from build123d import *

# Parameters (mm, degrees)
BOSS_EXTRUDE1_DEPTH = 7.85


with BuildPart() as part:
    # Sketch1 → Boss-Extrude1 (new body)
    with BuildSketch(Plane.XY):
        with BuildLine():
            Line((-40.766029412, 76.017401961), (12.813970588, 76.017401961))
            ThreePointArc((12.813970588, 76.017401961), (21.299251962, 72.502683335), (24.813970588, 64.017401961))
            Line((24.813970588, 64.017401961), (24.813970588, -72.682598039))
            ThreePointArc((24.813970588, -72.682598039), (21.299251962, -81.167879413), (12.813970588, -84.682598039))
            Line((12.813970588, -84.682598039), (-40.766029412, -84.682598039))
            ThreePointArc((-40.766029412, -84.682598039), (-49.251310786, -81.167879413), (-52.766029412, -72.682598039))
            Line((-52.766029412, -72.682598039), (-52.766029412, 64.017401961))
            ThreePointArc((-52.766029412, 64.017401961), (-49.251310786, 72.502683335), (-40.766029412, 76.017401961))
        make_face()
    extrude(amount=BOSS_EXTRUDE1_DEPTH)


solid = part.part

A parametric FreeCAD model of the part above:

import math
import FreeCAD as App
import Part
import Sketcher

V = App.Vector

doc = App.newDocument("Part")
params = doc.addObject("Spreadsheet::Sheet", "Params")
for row, (alias, value) in enumerate([
    ("sketch1_radius", "12 mm"),
    ("sketch1_height", "136.7 mm"),
    ("sketch1_width", "53.58 mm"),
    ("pad1_length", "7.85 mm"),
], start=1):
    params.set(f"A{row}", alias)
    params.set(f"B{row}", "=" + value)
    params.setAlias(f"B{row}", alias)

body = doc.addObject("PartDesign::Body", "Body")

# Sketch on XY plane
sketch1 = doc.addObject("Sketcher::SketchObject", "Sketch")
body.addObject(sketch1)
sketch1.AttachmentSupport = (doc.XY_Plane, [""])
sketch1.MapMode = "FlatFace"
sketch1.addGeometry(Part.LineSegment(V(13, 76, 0), V(-41, 76, 0)), False)
sketch1.addGeometry(Part.ArcOfCircle(Part.Circle(V(-41, 64, 0), V(0, 0, 1), 12), math.radians(90), math.radians(180)), False)
sketch1.addGeometry(Part.LineSegment(V(-53, 64, 0), V(-53, -73, 0)), False)
sketch1.addGeometry(Part.ArcOfCircle(Part.Circle(V(-41, -73, 0), V(0, 0, 1), 12), math.radians(-180), math.radians(-90)), False)
sketch1.addGeometry(Part.LineSegment(V(-41, -85, 0), V(13, -85, 0)), False)
sketch1.addGeometry(Part.ArcOfCircle(Part.Circle(V(13, -73, 0), V(0, 0, 1), 12), math.radians(-90), math.radians(0)), False)
sketch1.addGeometry(Part.LineSegment(V(25, -73, 0), V(25, 64, 0)), False)
sketch1.addGeometry(Part.ArcOfCircle(Part.Circle(V(13, 64, 0), V(0, 0, 1), 12), math.radians(0), math.radians(90)), False)
sketch1.addConstraint(Sketcher.Constraint("Tangent", 0, 2, 1, 1))
sketch1.addConstraint(Sketcher.Constraint("Tangent", 1, 2, 2, 1))
sketch1.addConstraint(Sketcher.Constraint("Tangent", 2, 2, 3, 1))
sketch1.addConstraint(Sketcher.Constraint("Tangent", 3, 2, 4, 1))
sketch1.addConstraint(Sketcher.Constraint("Tangent", 4, 2, 5, 1))
sketch1.addConstraint(Sketcher.Constraint("Tangent", 5, 2, 6, 1))
sketch1.addConstraint(Sketcher.Constraint("Tangent", 6, 2, 7, 1))
sketch1.addConstraint(Sketcher.Constraint("Tangent", 7, 2, 0, 1))
sketch1.addConstraint(Sketcher.Constraint("Horizontal", 0))
sketch1.addConstraint(Sketcher.Constraint("Vertical", 2))
sketch1.addConstraint(Sketcher.Constraint("Horizontal", 4))
sketch1.addConstraint(Sketcher.Constraint("Vertical", 6))
sketch1.addConstraint(Sketcher.Constraint("Equal", 1, 3))
sketch1.addConstraint(Sketcher.Constraint("Equal", 3, 5))
sketch1.addConstraint(Sketcher.Constraint("Equal", 5, 7))
sketch1.addConstraint(Sketcher.Constraint("Radius", 1, 12.0))
sketch1.addConstraint(Sketcher.Constraint("DistanceY", 2, 2, 2, 1, 136.7))
sketch1.addConstraint(Sketcher.Constraint("DistanceX", 0, 2, 0, 1, 53.58))
sketch1.addConstraint(Sketcher.Constraint("DistanceY", -1, 1, 1, 3, 64.017402))
sketch1.addConstraint(Sketcher.Constraint("DistanceX", 1, 3, -1, 1, 40.766029))
sketch1.setExpression("Constraints[15]", "Params.sketch1_radius")
sketch1.setExpression("Constraints[16]", "Params.sketch1_height")
sketch1.setExpression("Constraints[17]", "Params.sketch1_width")
pad1 = doc.addObject("PartDesign::Pad", "Pad")
body.addObject(pad1)
pad1.Profile = sketch1
pad1.setExpression("Length", "Params.pad1_length")

doc.recompute()
